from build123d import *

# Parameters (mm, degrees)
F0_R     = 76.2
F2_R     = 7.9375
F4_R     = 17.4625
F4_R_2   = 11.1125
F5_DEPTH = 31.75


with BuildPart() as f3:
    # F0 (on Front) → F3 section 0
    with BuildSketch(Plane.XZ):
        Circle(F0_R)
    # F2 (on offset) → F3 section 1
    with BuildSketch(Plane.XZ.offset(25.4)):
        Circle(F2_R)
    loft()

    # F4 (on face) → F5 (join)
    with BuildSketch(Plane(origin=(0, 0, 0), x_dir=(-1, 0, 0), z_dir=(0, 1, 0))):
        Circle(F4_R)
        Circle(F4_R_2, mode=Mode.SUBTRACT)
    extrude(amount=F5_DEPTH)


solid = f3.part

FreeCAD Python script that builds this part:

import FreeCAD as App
import Part
import Sketcher

V = App.Vector
Q = App.Units.Quantity

doc = App.newDocument("Part")
body = doc.addObject("PartDesign::Body", "Body")

# Sketch on XZ plane
sketch1 = doc.addObject("Sketcher::SketchObject", "Sketch")
body.addObject(sketch1)
sketch1.AttachmentSupport = (doc.XZ_Plane, [""])
sketch1.MapMode = "FlatFace"
sketch1.addGeometry(Part.Circle(V(0, 0, 0), V(0, 0, 1), 76.2), False)
sketch1.addConstraint([
    Sketcher.Constraint("Coincident", 0, 3, -1, 1),
    Sketcher.Constraint("Diameter", 0, Q("6 in")),
])

# Sketch on XZ plane
sketch2 = doc.addObject("Sketcher::SketchObject", "Sketch001")
body.addObject(sketch2)
sketch2.AttachmentSupport = (doc.XZ_Plane, [""])
sketch2.MapMode = "FlatFace"
sketch2.AttachmentOffset = App.Placement(V(0, 0, 1 * 25.4), App.Rotation())
sketch2.addGeometry(Part.Circle(V(0, 0, 0), V(0, 0, 1), 7.9375), False)
sketch2.addConstraint([
    Sketcher.Constraint("Coincident", 0, 3, -1, 1),
    Sketcher.Constraint("Diameter", 0, Q("0.625 in")),
])

additiveloft = doc.addObject("PartDesign::AdditiveLoft", "AdditiveLoft")
body.addObject(additiveloft)
additiveloft.Profile = sketch1
additiveloft.Sections = [sketch2]

# Sketch on XZ plane
sketch3 = doc.addObject("Sketcher::SketchObject", "Sketch002")
body.addObject(sketch3)
sketch3.AttachmentSupport = (doc.XZ_Plane, [""])
sketch3.MapMode = "FlatFace"
sketch3.addGeometry([
    Part.Circle(V(0, 0, 0), V(0, 0, 1), 17.4625),
    Part.Circle(V(0, 0, 0), V(0, 0, 1), 11.1125),
], False)
sketch3.addConstraint([
    Sketcher.Constraint("Coincident", 0, 3, -1, 1),
    Sketcher.Constraint("Coincident", 1, 3, -1, 1),
    Sketcher.Constraint("Diameter", 0, Q("1.375 in")),
    Sketcher.Constraint("Diameter", 1, Q("0.875 in")),
])
pad1 = doc.addObject("PartDesign::Pad", "Pad")
body.addObject(pad1)
pad1.Profile = sketch3
pad1.Length = Q("1.25 in")
pad1.Reversed = True

doc.recompute()
